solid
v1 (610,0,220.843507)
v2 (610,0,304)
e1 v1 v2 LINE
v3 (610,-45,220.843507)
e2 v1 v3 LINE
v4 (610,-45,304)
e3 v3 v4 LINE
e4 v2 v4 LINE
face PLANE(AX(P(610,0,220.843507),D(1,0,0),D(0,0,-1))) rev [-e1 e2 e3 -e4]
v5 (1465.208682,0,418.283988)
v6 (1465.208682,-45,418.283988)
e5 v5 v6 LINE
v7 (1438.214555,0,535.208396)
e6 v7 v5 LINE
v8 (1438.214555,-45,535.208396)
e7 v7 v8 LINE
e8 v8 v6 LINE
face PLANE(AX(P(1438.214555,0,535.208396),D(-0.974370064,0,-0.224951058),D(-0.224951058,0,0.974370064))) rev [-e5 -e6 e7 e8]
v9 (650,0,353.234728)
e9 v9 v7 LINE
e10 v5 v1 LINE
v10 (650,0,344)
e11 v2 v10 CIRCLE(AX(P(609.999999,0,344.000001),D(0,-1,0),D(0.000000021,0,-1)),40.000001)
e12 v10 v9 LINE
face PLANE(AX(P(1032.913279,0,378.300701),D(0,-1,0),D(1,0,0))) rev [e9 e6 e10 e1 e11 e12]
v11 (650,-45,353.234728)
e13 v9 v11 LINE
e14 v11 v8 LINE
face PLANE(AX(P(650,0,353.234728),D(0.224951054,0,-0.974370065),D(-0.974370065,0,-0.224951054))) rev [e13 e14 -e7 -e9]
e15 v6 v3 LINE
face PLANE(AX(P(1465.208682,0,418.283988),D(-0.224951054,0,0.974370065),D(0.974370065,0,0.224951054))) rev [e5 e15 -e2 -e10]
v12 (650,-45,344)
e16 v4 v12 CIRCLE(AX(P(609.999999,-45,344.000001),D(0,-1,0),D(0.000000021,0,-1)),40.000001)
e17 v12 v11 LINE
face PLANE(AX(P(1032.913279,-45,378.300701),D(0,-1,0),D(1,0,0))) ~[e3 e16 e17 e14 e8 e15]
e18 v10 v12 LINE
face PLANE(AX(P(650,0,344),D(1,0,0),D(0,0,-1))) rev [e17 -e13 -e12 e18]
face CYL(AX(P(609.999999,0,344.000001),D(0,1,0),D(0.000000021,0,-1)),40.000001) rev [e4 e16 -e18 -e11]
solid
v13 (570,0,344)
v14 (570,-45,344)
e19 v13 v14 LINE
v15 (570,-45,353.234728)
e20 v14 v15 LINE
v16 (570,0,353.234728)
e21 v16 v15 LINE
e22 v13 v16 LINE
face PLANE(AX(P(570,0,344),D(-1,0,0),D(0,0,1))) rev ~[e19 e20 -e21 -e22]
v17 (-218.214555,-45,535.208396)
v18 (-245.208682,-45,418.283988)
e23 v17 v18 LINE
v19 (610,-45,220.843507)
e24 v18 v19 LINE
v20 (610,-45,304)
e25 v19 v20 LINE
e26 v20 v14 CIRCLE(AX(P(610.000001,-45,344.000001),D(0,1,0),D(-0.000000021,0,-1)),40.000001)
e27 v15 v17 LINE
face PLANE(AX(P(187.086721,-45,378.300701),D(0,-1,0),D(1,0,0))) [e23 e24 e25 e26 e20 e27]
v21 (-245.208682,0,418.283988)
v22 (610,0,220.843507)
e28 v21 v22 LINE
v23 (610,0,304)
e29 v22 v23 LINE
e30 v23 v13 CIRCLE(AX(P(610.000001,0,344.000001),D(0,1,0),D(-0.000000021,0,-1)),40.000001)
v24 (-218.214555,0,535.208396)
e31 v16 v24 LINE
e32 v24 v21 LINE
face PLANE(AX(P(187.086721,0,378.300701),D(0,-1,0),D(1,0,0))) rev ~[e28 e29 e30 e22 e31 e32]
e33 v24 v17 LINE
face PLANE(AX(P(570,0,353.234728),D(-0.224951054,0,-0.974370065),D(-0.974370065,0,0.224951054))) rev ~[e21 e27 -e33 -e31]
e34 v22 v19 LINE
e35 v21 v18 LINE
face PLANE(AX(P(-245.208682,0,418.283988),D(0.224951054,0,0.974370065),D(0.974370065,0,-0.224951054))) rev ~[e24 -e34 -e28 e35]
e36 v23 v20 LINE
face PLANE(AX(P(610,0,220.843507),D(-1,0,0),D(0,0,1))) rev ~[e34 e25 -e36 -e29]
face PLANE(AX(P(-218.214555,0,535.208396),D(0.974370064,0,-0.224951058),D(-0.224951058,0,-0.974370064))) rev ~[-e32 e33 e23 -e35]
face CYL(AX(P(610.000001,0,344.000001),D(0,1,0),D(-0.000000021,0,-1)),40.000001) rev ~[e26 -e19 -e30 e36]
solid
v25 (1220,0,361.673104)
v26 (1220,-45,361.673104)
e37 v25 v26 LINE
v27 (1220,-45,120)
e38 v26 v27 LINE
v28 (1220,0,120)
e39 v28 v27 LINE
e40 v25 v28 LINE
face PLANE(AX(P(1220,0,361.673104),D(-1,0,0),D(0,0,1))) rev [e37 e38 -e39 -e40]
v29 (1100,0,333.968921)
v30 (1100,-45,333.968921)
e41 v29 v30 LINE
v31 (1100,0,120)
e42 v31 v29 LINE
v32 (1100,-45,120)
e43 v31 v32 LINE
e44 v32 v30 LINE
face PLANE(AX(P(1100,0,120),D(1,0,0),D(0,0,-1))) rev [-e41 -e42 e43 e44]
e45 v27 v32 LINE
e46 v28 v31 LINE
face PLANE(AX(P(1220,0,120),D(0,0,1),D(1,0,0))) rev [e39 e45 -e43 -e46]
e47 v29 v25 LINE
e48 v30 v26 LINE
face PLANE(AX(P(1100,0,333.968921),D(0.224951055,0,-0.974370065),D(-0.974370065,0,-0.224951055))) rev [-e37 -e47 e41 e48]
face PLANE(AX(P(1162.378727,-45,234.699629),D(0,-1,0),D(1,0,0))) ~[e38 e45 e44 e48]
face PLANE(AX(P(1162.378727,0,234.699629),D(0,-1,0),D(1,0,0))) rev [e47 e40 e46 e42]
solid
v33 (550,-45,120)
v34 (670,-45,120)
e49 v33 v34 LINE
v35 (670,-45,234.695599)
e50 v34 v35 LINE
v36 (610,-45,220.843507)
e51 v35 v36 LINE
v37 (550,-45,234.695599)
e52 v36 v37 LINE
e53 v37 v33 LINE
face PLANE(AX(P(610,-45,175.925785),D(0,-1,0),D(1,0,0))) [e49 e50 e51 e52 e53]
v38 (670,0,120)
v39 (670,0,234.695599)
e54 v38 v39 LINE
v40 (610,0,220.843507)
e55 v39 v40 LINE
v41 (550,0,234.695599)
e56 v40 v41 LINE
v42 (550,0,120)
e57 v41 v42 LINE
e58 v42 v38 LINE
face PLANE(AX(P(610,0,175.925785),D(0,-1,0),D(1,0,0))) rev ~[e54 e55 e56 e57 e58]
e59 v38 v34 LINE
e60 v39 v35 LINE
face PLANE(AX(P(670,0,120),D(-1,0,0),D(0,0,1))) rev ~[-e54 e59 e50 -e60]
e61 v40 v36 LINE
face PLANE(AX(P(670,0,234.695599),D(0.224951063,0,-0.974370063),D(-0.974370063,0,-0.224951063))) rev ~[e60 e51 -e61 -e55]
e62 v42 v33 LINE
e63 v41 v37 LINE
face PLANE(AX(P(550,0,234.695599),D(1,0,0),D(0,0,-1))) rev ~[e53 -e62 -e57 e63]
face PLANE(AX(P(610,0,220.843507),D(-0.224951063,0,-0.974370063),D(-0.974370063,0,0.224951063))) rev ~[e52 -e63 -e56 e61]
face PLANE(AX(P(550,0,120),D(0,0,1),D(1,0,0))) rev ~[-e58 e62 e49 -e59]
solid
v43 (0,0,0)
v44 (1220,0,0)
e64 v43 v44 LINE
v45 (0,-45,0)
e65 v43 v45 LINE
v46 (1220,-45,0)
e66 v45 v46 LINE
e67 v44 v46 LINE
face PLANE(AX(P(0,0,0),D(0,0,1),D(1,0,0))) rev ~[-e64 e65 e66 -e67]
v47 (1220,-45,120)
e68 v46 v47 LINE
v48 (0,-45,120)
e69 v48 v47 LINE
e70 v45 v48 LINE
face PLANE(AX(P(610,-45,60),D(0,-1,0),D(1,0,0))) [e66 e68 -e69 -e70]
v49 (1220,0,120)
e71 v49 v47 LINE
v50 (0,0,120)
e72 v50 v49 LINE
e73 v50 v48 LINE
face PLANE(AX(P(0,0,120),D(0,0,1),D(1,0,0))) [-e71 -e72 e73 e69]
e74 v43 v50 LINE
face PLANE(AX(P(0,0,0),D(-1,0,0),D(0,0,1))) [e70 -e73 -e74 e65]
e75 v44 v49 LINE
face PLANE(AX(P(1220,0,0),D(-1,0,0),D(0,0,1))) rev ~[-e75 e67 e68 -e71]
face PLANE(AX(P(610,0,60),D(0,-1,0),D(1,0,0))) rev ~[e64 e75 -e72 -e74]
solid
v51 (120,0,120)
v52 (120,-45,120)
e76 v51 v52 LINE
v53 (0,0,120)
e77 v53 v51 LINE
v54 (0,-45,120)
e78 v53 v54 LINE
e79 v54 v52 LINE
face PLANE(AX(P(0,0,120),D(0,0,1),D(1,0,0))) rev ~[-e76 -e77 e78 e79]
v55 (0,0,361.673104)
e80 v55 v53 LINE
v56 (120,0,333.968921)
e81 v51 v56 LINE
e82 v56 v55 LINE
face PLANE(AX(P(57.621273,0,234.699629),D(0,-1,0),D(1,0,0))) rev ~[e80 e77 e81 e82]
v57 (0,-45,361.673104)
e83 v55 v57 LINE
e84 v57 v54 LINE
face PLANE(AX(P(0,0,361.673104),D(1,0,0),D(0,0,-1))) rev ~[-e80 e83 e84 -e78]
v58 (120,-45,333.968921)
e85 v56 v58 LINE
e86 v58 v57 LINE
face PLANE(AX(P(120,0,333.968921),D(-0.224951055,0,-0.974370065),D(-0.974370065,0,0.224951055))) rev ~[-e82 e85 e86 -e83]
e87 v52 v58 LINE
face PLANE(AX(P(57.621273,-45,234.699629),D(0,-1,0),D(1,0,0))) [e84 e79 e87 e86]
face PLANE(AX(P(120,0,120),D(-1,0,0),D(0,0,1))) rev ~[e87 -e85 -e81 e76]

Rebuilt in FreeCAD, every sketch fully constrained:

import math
import FreeCAD as App
import Part
import Sketcher
from FreeCAD import Vector
Q = App.Units.Quantity


def add_polygon(sketch, points):
    """Adds a closed chain of lines whose ends are joined by coincident constraints."""
    first, n = sketch.GeometryCount, len(points)
    for a, b in zip(points, points[1:] + points[:1]):
        sketch.addGeometry(Part.LineSegment(App.Vector(*a, 0), App.Vector(*b, 0)), False)
    for i in range(n):
        sketch.addConstraint(Sketcher.Constraint("Coincident", first + i, 2, first + (i + 1) % n, 1))

doc = App.newDocument("Part")
body = doc.addObject("PartDesign::Body", "Body")

sketch1 = body.newObject("Sketcher::SketchObject", "Sketch")
sketch1.AttachmentSupport = (doc.getObject("XZ_Plane"), [""])
sketch1.MapMode = "FlatFace"
add_polygon(sketch1, [(0, 120), (0, 0), (1220, 0), (1220, 120)])
sketch1.addConstraint([
    Sketcher.Constraint("Vertical", 0),
    Sketcher.Constraint("Horizontal", 1),
    Sketcher.Constraint("Vertical", 2),
    Sketcher.Constraint("Horizontal", 3),
    Sketcher.Constraint("Coincident", 0, 2, -1, 1),
    Sketcher.Constraint("DistanceX", 1, 1, 1, 2, Q("1220 mm")),
    Sketcher.Constraint("DistanceY", 0, 2, 0, 1, Q("120 mm")),
])
pad1 = body.newObject("PartDesign::Pad", "Pad")
pad1.Profile = sketch1
pad1.Length = 45
body2 = doc.addObject("PartDesign::Body", "Body001")

sketch2 = body2.newObject("Sketcher::SketchObject", "Sketch001")
sketch2.AttachmentSupport = (doc.getObject("XZ_Plane001"), [""])
sketch2.MapMode = "FlatFace"
sketch2.addGeometry([
    Part.LineSegment(Vector(570, 344, 0), Vector(570, 353, 0)),
    Part.LineSegment(Vector(570, 353, 0), Vector(-218, 535, 0)),
    Part.LineSegment(Vector(-218, 535, 0), Vector(-245, 418, 0)),
    Part.LineSegment(Vector(-245, 418, 0), Vector(610, 221, 0)),
    Part.LineSegment(Vector(610, 221, 0), Vector(610, 304, 0)),
    Part.ArcOfCircle(Part.Circle(Vector(610, 344, 0), Vector(0, 0, 1), 40), math.radians(-180), math.radians(-90)),
], False)
sketch2.addConstraint([
    Sketcher.Constraint("Coincident", 0, 2, 1, 1),
    Sketcher.Constraint("Coincident", 1, 2, 2, 1),
    Sketcher.Constraint("Coincident", 2, 2, 3, 1),
    Sketcher.Constraint("Coincident", 3, 2, 4, 1),
    Sketcher.Constraint("Coincident", 4, 2, 5, 2),
    Sketcher.Constraint("Tangent", 5, 1, 0, 1),
    Sketcher.Constraint("Vertical", 0),
    Sketcher.Constraint("Vertical", 4),
    Sketcher.Constraint("Perpendicular", 1, 2),
    Sketcher.Constraint("Perpendicular", 2, 3),
    Sketcher.Constraint("Vertical", 5, 3, 3, 2),
    Sketcher.Constraint("Radius", 5, Q("40.000001 mm")),
    Sketcher.Constraint("Angle", 1, Q("167 deg")),
    Sketcher.Constraint("Distance", 2, Q("120 mm")),
    Sketcher.Constraint("DistanceX", -1, 1, 5, 3, Q("610.000001 mm")),
    Sketcher.Constraint("DistanceY", -1, 1, 5, 3, Q("344.000001 mm")),
    Sketcher.Constraint("DistanceY", 0, 1, 0, 2, Q("9.234728 mm")),
    Sketcher.Constraint("DistanceY", -1, 1, 2, 2, Q("418.283988 mm")),
])
pad2 = body2.newObject("PartDesign::Pad", "Pad001")
pad2.Profile = sketch2
pad2.Length = 45
body3 = doc.addObject("PartDesign::Body", "Body002")

sketch3 = body3.newObject("Sketcher::SketchObject", "Sketch002")
sketch3.AttachmentSupport = (doc.getObject("XZ_Plane002"), [""])
sketch3.MapMode = "FlatFace"
add_polygon(sketch3, [(0, 362), (0, 120), (120, 120), (120, 334)])
sketch3.addConstraint([
    Sketcher.Constraint("Vertical", 0),
    Sketcher.Constraint("Horizontal", 1),
    Sketcher.Constraint("Vertical", 2),
    Sketcher.Constraint("PointOnObject", 0, 2, -2),
    Sketcher.Constraint("DistanceX", 1, 1, 1, 2, Q("120 mm")),
    Sketcher.Constraint("Angle", 3, Q("167 deg")),
    Sketcher.Constraint("DistanceY", -1, 1, 0, 2, Q("120 mm")),
    Sketcher.Constraint("DistanceY", 2, 1, 2, 2, Q("213.968921 mm")),
])
pad3 = body3.newObject("PartDesign::Pad", "Pad002")
pad3.Profile = sketch3
pad3.Length = 45
body4 = doc.addObject("PartDesign::Body", "Body003")
doc.recompute()

mirroring = doc.addObject("Part::Mirroring", "Mirroring")
mirroring.Source = body
mirroring.Base = Vector(610, 0, 0)
mirroring.Normal = Vector(1, 0, 0)
body4.BaseFeature = mirroring
doc.recompute()
body5 = doc.addObject("PartDesign::Body", "Body004")
doc.recompute()

mirroring2 = doc.addObject("Part::Mirroring", "Mirroring001")
mirroring2.Source = body2
mirroring2.Base = Vector(610, 0, 0)
mirroring2.Normal = Vector(1, 0, 0)
body5.BaseFeature = mirroring2
doc.recompute()
body6 = doc.addObject("PartDesign::Body", "Body005")
doc.recompute()

mirroring3 = doc.addObject("Part::Mirroring", "Mirroring002")
mirroring3.Source = body3
mirroring3.Base = Vector(610, 0, 0)
mirroring3.Normal = Vector(1, 0, 0)
body6.BaseFeature = mirroring3
doc.recompute()
body7 = doc.addObject("PartDesign::Body", "Body006")

sketch4 = body7.newObject("Sketcher::SketchObject", "Sketch003")
sketch4.AttachmentSupport = (doc.getObject("XZ_Plane006"), [""])
sketch4.MapMode = "FlatFace"
add_polygon(sketch4, [(550, 120), (670, 120), (670, 235), (610, 221), (550, 235)])
sketch4.addConstraint([
    Sketcher.Constraint("Horizontal", 0),
    Sketcher.Constraint("Vertical", 1),
    Sketcher.Constraint("Vertical", 4),
    Sketcher.Constraint("Horizontal", 1, 2, 3, 2),
    Sketcher.Constraint("Equal", 2, 3),
    Sketcher.Constraint("DistanceX", 0, 1, 0, 2, Q("120 mm")),
    Sketcher.Constraint("Angle", 2, Q("-167 deg")),
    Sketcher.Constraint("DistanceX", -1, 1, 0, 2, Q("670 mm")),
    Sketcher.Constraint("DistanceY", -1, 1, 0, 2, Q("120 mm")),
    Sketcher.Constraint("DistanceY", 1, 1, 1, 2, Q("114.695599 mm")),
])
pad4 = body7.newObject("PartDesign::Pad", "Pad003")
pad4.Profile = sketch4
pad4.Length = 45
body.Visibility = False
mirroring.Visibility = False
mirroring2.Visibility = False
mirroring3.Visibility = False

doc.recompute()
